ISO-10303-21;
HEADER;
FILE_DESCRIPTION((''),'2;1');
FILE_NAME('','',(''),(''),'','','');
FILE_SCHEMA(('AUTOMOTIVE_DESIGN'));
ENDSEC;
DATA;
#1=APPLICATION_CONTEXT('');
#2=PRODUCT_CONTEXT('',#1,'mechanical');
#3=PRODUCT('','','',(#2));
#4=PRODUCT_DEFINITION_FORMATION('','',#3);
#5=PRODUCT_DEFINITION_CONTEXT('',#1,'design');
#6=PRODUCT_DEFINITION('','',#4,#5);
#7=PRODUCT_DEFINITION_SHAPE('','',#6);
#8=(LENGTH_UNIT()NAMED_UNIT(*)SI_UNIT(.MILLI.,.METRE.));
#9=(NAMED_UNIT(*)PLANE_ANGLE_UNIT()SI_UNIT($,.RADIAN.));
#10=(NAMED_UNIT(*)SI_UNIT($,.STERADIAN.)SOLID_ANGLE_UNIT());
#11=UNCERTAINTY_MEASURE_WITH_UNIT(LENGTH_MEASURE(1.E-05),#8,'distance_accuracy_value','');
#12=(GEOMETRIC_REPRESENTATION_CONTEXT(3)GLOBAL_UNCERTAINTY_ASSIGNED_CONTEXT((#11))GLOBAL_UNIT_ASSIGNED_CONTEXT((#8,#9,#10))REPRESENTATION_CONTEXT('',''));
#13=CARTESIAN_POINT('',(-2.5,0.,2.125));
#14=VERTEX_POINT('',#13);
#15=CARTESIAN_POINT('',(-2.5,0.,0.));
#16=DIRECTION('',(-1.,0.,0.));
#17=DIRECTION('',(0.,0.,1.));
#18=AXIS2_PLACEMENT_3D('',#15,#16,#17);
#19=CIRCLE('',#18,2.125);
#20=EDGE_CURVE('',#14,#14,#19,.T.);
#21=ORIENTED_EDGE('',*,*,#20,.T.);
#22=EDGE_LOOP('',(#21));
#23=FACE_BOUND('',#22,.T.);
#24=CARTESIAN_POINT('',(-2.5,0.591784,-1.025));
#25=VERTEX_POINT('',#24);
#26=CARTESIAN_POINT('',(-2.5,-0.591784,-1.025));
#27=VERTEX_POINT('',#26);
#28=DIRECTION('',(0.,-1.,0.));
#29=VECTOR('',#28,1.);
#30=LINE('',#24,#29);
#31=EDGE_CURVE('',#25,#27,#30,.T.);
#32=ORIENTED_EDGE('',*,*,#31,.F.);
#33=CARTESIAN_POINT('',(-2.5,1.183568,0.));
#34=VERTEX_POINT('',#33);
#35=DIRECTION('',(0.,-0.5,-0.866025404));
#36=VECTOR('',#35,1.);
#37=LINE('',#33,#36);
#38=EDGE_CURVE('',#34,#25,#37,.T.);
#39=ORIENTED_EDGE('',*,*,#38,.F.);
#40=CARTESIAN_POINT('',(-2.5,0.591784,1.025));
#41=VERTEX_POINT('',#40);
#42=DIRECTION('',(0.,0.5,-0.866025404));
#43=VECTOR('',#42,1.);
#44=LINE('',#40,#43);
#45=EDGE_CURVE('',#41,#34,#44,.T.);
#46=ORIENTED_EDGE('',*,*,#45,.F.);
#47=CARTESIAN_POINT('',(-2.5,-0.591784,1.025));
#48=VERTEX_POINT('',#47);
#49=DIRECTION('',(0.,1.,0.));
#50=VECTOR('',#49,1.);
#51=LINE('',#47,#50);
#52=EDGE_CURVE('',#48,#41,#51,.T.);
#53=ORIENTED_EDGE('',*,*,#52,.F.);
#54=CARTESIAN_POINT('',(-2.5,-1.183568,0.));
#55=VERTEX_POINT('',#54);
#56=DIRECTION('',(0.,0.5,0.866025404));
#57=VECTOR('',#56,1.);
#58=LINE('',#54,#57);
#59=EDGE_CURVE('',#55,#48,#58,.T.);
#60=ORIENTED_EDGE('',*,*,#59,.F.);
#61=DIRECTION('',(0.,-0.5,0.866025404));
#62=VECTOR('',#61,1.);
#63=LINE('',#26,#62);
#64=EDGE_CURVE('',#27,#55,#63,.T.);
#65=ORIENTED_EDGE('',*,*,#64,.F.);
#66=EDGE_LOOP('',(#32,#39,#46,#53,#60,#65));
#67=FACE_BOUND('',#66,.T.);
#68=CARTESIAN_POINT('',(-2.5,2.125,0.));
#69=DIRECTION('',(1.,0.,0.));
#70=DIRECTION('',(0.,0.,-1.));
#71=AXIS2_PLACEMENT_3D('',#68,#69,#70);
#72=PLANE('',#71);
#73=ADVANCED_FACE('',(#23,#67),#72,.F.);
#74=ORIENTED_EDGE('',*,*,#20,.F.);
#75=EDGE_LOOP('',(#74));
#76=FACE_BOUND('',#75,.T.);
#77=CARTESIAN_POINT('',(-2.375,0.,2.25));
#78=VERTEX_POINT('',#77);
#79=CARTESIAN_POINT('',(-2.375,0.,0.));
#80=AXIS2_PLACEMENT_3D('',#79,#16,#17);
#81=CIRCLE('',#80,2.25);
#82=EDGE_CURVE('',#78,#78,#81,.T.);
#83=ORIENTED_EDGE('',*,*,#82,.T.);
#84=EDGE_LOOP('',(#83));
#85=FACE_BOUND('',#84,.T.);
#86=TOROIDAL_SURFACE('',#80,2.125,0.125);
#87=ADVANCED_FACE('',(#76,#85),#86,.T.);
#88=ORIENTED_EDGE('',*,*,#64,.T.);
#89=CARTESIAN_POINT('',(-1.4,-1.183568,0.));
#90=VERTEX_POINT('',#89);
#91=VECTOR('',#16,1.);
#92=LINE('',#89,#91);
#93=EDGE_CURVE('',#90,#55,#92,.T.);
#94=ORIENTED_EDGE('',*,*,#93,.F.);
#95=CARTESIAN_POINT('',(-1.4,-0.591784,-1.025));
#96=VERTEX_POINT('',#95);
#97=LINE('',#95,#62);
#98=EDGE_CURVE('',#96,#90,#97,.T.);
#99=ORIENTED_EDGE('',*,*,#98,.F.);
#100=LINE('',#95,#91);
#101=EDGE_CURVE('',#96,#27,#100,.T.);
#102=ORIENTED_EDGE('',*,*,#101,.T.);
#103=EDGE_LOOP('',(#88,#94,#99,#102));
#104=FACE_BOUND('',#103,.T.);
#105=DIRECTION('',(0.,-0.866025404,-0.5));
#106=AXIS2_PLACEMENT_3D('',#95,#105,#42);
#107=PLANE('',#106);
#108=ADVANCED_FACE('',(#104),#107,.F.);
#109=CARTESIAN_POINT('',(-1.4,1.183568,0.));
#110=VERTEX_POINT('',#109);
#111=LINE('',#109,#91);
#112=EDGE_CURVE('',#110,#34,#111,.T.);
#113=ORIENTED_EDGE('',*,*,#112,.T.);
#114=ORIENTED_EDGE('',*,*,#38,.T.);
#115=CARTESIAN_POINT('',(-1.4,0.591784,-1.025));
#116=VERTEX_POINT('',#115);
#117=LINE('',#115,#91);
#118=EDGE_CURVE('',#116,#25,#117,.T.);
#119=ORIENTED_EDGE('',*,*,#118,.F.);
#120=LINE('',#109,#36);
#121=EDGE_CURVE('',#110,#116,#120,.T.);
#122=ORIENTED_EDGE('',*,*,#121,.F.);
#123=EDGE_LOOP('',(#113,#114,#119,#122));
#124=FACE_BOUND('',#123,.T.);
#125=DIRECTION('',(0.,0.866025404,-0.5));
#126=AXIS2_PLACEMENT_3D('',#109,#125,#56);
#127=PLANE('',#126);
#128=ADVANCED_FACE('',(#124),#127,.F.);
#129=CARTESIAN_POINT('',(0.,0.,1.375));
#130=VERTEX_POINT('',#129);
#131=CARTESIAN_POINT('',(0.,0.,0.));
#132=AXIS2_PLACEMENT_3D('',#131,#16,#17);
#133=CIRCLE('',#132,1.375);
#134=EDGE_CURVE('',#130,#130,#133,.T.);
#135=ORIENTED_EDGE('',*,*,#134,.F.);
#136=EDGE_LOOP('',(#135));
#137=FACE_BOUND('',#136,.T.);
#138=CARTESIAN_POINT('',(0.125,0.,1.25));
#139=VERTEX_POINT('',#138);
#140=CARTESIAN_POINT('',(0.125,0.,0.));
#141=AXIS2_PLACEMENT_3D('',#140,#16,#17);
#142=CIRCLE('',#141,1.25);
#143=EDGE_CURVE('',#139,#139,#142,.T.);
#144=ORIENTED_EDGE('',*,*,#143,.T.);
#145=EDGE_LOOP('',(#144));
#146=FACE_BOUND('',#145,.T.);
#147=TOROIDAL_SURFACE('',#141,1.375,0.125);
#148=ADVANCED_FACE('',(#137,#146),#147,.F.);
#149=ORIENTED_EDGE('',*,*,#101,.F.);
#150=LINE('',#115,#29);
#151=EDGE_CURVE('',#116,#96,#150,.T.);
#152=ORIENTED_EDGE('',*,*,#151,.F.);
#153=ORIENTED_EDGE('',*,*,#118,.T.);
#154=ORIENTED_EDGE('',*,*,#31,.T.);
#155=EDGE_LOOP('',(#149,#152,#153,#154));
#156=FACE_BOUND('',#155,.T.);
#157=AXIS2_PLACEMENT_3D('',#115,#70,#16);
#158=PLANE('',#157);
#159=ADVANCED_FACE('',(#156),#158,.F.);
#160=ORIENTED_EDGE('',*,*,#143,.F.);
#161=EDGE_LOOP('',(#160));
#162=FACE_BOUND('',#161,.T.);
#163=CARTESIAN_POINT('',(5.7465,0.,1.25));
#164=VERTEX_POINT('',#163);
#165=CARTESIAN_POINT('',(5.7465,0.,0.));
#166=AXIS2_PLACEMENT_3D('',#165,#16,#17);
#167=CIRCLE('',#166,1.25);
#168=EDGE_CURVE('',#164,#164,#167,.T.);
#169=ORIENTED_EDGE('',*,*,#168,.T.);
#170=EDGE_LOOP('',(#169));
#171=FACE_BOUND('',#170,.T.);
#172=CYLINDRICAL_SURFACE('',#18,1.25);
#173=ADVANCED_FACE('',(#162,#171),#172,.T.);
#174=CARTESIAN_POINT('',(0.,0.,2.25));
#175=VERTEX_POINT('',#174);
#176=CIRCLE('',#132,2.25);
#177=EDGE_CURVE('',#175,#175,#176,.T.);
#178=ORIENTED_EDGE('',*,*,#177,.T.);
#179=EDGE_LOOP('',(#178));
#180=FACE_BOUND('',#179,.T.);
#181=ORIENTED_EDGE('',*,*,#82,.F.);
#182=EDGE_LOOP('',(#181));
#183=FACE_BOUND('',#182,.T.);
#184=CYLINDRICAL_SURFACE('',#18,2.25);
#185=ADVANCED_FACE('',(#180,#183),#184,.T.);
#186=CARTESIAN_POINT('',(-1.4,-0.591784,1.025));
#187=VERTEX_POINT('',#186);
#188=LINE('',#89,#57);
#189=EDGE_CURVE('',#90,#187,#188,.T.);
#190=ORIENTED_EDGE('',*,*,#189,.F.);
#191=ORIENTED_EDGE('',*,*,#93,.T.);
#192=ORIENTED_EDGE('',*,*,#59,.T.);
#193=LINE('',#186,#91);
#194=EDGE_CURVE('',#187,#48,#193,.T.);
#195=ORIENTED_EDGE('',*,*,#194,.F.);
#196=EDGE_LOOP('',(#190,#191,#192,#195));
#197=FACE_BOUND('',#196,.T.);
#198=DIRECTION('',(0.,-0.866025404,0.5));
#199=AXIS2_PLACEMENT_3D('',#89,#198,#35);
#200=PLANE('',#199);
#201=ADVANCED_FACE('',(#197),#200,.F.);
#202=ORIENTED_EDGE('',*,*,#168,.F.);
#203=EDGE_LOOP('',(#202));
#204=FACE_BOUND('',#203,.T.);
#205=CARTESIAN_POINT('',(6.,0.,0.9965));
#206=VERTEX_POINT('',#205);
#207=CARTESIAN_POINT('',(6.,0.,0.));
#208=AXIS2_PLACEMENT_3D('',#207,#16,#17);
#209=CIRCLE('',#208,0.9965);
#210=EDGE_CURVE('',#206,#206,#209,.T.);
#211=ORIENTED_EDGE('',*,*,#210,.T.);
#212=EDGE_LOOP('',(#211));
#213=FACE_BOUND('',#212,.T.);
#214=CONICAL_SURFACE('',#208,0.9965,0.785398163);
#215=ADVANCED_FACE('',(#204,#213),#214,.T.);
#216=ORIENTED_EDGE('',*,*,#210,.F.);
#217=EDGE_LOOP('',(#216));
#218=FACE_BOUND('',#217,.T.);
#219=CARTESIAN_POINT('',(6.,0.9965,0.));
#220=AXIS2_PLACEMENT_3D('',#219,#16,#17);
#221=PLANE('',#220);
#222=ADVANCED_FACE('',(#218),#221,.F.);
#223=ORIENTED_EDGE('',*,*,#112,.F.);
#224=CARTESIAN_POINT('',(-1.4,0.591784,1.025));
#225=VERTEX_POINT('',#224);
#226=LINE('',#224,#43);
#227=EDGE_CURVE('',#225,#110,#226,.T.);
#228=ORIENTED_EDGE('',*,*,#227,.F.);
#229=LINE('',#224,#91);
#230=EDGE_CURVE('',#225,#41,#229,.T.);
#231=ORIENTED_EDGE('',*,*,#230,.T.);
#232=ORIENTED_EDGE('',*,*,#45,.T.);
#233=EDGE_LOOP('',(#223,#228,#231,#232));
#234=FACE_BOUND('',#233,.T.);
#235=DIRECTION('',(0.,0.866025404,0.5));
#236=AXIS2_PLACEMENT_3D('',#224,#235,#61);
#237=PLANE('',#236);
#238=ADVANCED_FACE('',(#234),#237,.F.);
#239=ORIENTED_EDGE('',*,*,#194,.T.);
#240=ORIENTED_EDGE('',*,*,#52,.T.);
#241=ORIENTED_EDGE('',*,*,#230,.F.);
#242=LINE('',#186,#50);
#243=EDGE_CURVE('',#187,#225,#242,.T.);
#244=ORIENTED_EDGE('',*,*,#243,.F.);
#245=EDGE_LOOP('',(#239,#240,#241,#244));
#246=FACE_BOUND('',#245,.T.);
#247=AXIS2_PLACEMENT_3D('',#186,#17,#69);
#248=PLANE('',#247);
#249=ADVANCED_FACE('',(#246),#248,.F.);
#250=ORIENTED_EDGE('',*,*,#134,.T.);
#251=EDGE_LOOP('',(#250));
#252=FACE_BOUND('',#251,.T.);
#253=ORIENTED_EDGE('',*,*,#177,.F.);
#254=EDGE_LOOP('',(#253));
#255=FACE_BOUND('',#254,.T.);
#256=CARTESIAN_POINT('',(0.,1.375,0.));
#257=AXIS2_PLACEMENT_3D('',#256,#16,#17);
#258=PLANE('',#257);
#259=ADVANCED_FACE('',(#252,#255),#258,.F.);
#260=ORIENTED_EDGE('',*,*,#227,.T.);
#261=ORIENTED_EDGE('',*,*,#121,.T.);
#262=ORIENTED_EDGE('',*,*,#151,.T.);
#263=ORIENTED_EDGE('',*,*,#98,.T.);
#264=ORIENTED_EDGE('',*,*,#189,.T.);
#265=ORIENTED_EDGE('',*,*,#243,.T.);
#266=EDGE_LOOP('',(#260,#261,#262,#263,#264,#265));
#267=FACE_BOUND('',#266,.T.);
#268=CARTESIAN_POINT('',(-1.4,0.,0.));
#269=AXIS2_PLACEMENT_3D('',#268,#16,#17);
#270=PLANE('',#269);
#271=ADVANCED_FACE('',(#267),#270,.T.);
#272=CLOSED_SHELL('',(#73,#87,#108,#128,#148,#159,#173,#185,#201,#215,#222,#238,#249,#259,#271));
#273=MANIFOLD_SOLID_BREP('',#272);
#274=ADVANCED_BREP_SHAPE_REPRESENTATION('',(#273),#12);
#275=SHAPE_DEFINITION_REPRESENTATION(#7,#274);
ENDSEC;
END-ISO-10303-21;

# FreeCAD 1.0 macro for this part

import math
import FreeCAD as App
import Part
import Sketcher
from FreeCAD import Vector
Q = App.Units.Quantity

doc = App.newDocument("Part")
body = doc.addObject("PartDesign::Body", "Body")

sketch1 = body.newObject("Sketcher::SketchObject", "Sketch")
sketch1.AttachmentSupport = (doc.getObject("XY_Plane"), [""])
sketch1.MapMode = "FlatFace"
sketch1.addGeometry([
    Part.LineSegment(Vector(5.75, 1.25, 0), Vector(0.12, 1.25, 0)),
    Part.ArcOfCircle(Part.Circle(Vector(0.12, 1.37, 0), Vector(0, 0, 1), 0.12), math.radians(180), math.radians(270)),
    Part.LineSegment(Vector(0, 1.38, 0), Vector(0, 2.25, 0)),
    Part.LineSegment(Vector(0, 2.25, 0), Vector(-2.38, 2.25, 0)),
    Part.ArcOfCircle(Part.Circle(Vector(-2.38, 2.13, 0), Vector(0, 0, 1), 0.12), math.radians(90), math.radians(180)),
    Part.LineSegment(Vector(-2.5, 2.12, 0), Vector(-2.5, 0, 0)),
    Part.LineSegment(Vector(-2.5, 0, 0), Vector(6, 0, 0)),
    Part.LineSegment(Vector(6, 0, 0), Vector(6, 1, 0)),
    Part.LineSegment(Vector(6, 1, 0), Vector(5.75, 1.25, 0)),
], False)
sketch1.addConstraint([
    Sketcher.Constraint("Tangent", 0, 2, 1, 2),
    Sketcher.Constraint("Tangent", 1, 1, 2, 1),
    Sketcher.Constraint("Coincident", 2, 2, 3, 1),
    Sketcher.Constraint("Tangent", 3, 2, 4, 1),
    Sketcher.Constraint("Tangent", 4, 2, 5, 1),
    Sketcher.Constraint("Coincident", 5, 2, 6, 1),
    Sketcher.Constraint("Coincident", 6, 2, 7, 1),
    Sketcher.Constraint("Coincident", 7, 2, 8, 1),
    Sketcher.Constraint("Coincident", 8, 2, 0, 1),
    Sketcher.Constraint("Horizontal", 0),
    Sketcher.Constraint("Vertical", 2),
    Sketcher.Constraint("Horizontal", 3),
    Sketcher.Constraint("Vertical", 5),
    Sketcher.Constraint("Horizontal", 6),
    Sketcher.Constraint("Vertical", 7),
    Sketcher.Constraint("Equal", 1, 4),
    Sketcher.Constraint("PointOnObject", 1, 1, -2),
    Sketcher.Constraint("PointOnObject", 5, 2, -1),
    Sketcher.Constraint("Angle", 8, Q("135 deg")),
    Sketcher.Constraint("DistanceX", 6, 1, 6, 2, Q("8.5 mm")),
    Sketcher.Constraint("DistanceX", -1, 1, 6, 2, Q("6 mm")),
    Sketcher.Constraint("Radius", 1, Q("0.125 mm")),
    Sketcher.Constraint("DistanceY", 0, 2, 2, 2, Q("1 mm")),
    Sketcher.Constraint("DistanceY", 5, 2, 5, 1, Q("2.125 mm")),
    Sketcher.Constraint("DistanceX", 0, 2, 0, 1, Q("5.6215 mm")),
])
revolution = body.newObject("PartDesign::Revolution", "Revolution")
revolution.Profile = sketch1
revolution.ReferenceAxis = (sketch1, ["H_Axis"])
revolution.Angle = 360

sketch2 = body.newObject("Sketcher::SketchObject", "Sketch001")
sketch2.AttachmentSupport = (doc.getObject("YZ_Plane"), [""])
sketch2.MapMode = "FlatFace"
sketch2.AttachmentOffset = App.Placement(Vector(0, 0, -2.5), App.Rotation())
sketch2.addGeometry([
    Part.LineSegment(Vector(0.6, 1, 0), Vector(1.2, 0, 0)),
    Part.LineSegment(Vector(1.2, 0, 0), Vector(0.6, -1, 0)),
    Part.LineSegment(Vector(0.6, -1, 0), Vector(-0.6, -1, 0)),
    Part.LineSegment(Vector(-0.6, -1, 0), Vector(-1.2, 0, 0)),
    Part.LineSegment(Vector(-1.2, 0, 0), Vector(-0.6, 1, 0)),
    Part.LineSegment(Vector(-0.6, 1, 0), Vector(0.6, 1, 0)),
], False)
sketch2.addConstraint([
    Sketcher.Constraint("Coincident", 0, 2, 1, 1),
    Sketcher.Constraint("Coincident", 1, 2, 2, 1),
    Sketcher.Constraint("Coincident", 2, 2, 3, 1),
    Sketcher.Constraint("Coincident", 3, 2, 4, 1),
    Sketcher.Constraint("Coincident", 4, 2, 5, 1),
    Sketcher.Constraint("Coincident", 5, 2, 0, 1),
    Sketcher.Constraint("Horizontal", 2),
    Sketcher.Constraint("Horizontal", 5),
    Sketcher.Constraint("Symmetric", 0, 2, 3, 2, -1, 1),
    Sketcher.Constraint("Symmetric", 1, 2, 4, 2, -1, 1),
    Sketcher.Constraint("PointOnObject", 0, 2, -1),
    Sketcher.Constraint("Parallel", 0, 3),
    Sketcher.Constraint("Vertical", 2, 2, 4, 2),
    Sketcher.Constraint("Angle", 0, Q("-60 deg")),
    Sketcher.Constraint("DistanceY", 2, 2, 4, 2, Q("2.05 mm")),
    Sketcher.Constraint("DistanceX", 2, 2, 2, 1, Q("1.183568 mm")),
])
pocket1 = body.newObject("PartDesign::Pocket", "Pocket")
pocket1.Profile = sketch2
pocket1.Length = 1.1
pocket1.Reversed = True

doc.recompute()
